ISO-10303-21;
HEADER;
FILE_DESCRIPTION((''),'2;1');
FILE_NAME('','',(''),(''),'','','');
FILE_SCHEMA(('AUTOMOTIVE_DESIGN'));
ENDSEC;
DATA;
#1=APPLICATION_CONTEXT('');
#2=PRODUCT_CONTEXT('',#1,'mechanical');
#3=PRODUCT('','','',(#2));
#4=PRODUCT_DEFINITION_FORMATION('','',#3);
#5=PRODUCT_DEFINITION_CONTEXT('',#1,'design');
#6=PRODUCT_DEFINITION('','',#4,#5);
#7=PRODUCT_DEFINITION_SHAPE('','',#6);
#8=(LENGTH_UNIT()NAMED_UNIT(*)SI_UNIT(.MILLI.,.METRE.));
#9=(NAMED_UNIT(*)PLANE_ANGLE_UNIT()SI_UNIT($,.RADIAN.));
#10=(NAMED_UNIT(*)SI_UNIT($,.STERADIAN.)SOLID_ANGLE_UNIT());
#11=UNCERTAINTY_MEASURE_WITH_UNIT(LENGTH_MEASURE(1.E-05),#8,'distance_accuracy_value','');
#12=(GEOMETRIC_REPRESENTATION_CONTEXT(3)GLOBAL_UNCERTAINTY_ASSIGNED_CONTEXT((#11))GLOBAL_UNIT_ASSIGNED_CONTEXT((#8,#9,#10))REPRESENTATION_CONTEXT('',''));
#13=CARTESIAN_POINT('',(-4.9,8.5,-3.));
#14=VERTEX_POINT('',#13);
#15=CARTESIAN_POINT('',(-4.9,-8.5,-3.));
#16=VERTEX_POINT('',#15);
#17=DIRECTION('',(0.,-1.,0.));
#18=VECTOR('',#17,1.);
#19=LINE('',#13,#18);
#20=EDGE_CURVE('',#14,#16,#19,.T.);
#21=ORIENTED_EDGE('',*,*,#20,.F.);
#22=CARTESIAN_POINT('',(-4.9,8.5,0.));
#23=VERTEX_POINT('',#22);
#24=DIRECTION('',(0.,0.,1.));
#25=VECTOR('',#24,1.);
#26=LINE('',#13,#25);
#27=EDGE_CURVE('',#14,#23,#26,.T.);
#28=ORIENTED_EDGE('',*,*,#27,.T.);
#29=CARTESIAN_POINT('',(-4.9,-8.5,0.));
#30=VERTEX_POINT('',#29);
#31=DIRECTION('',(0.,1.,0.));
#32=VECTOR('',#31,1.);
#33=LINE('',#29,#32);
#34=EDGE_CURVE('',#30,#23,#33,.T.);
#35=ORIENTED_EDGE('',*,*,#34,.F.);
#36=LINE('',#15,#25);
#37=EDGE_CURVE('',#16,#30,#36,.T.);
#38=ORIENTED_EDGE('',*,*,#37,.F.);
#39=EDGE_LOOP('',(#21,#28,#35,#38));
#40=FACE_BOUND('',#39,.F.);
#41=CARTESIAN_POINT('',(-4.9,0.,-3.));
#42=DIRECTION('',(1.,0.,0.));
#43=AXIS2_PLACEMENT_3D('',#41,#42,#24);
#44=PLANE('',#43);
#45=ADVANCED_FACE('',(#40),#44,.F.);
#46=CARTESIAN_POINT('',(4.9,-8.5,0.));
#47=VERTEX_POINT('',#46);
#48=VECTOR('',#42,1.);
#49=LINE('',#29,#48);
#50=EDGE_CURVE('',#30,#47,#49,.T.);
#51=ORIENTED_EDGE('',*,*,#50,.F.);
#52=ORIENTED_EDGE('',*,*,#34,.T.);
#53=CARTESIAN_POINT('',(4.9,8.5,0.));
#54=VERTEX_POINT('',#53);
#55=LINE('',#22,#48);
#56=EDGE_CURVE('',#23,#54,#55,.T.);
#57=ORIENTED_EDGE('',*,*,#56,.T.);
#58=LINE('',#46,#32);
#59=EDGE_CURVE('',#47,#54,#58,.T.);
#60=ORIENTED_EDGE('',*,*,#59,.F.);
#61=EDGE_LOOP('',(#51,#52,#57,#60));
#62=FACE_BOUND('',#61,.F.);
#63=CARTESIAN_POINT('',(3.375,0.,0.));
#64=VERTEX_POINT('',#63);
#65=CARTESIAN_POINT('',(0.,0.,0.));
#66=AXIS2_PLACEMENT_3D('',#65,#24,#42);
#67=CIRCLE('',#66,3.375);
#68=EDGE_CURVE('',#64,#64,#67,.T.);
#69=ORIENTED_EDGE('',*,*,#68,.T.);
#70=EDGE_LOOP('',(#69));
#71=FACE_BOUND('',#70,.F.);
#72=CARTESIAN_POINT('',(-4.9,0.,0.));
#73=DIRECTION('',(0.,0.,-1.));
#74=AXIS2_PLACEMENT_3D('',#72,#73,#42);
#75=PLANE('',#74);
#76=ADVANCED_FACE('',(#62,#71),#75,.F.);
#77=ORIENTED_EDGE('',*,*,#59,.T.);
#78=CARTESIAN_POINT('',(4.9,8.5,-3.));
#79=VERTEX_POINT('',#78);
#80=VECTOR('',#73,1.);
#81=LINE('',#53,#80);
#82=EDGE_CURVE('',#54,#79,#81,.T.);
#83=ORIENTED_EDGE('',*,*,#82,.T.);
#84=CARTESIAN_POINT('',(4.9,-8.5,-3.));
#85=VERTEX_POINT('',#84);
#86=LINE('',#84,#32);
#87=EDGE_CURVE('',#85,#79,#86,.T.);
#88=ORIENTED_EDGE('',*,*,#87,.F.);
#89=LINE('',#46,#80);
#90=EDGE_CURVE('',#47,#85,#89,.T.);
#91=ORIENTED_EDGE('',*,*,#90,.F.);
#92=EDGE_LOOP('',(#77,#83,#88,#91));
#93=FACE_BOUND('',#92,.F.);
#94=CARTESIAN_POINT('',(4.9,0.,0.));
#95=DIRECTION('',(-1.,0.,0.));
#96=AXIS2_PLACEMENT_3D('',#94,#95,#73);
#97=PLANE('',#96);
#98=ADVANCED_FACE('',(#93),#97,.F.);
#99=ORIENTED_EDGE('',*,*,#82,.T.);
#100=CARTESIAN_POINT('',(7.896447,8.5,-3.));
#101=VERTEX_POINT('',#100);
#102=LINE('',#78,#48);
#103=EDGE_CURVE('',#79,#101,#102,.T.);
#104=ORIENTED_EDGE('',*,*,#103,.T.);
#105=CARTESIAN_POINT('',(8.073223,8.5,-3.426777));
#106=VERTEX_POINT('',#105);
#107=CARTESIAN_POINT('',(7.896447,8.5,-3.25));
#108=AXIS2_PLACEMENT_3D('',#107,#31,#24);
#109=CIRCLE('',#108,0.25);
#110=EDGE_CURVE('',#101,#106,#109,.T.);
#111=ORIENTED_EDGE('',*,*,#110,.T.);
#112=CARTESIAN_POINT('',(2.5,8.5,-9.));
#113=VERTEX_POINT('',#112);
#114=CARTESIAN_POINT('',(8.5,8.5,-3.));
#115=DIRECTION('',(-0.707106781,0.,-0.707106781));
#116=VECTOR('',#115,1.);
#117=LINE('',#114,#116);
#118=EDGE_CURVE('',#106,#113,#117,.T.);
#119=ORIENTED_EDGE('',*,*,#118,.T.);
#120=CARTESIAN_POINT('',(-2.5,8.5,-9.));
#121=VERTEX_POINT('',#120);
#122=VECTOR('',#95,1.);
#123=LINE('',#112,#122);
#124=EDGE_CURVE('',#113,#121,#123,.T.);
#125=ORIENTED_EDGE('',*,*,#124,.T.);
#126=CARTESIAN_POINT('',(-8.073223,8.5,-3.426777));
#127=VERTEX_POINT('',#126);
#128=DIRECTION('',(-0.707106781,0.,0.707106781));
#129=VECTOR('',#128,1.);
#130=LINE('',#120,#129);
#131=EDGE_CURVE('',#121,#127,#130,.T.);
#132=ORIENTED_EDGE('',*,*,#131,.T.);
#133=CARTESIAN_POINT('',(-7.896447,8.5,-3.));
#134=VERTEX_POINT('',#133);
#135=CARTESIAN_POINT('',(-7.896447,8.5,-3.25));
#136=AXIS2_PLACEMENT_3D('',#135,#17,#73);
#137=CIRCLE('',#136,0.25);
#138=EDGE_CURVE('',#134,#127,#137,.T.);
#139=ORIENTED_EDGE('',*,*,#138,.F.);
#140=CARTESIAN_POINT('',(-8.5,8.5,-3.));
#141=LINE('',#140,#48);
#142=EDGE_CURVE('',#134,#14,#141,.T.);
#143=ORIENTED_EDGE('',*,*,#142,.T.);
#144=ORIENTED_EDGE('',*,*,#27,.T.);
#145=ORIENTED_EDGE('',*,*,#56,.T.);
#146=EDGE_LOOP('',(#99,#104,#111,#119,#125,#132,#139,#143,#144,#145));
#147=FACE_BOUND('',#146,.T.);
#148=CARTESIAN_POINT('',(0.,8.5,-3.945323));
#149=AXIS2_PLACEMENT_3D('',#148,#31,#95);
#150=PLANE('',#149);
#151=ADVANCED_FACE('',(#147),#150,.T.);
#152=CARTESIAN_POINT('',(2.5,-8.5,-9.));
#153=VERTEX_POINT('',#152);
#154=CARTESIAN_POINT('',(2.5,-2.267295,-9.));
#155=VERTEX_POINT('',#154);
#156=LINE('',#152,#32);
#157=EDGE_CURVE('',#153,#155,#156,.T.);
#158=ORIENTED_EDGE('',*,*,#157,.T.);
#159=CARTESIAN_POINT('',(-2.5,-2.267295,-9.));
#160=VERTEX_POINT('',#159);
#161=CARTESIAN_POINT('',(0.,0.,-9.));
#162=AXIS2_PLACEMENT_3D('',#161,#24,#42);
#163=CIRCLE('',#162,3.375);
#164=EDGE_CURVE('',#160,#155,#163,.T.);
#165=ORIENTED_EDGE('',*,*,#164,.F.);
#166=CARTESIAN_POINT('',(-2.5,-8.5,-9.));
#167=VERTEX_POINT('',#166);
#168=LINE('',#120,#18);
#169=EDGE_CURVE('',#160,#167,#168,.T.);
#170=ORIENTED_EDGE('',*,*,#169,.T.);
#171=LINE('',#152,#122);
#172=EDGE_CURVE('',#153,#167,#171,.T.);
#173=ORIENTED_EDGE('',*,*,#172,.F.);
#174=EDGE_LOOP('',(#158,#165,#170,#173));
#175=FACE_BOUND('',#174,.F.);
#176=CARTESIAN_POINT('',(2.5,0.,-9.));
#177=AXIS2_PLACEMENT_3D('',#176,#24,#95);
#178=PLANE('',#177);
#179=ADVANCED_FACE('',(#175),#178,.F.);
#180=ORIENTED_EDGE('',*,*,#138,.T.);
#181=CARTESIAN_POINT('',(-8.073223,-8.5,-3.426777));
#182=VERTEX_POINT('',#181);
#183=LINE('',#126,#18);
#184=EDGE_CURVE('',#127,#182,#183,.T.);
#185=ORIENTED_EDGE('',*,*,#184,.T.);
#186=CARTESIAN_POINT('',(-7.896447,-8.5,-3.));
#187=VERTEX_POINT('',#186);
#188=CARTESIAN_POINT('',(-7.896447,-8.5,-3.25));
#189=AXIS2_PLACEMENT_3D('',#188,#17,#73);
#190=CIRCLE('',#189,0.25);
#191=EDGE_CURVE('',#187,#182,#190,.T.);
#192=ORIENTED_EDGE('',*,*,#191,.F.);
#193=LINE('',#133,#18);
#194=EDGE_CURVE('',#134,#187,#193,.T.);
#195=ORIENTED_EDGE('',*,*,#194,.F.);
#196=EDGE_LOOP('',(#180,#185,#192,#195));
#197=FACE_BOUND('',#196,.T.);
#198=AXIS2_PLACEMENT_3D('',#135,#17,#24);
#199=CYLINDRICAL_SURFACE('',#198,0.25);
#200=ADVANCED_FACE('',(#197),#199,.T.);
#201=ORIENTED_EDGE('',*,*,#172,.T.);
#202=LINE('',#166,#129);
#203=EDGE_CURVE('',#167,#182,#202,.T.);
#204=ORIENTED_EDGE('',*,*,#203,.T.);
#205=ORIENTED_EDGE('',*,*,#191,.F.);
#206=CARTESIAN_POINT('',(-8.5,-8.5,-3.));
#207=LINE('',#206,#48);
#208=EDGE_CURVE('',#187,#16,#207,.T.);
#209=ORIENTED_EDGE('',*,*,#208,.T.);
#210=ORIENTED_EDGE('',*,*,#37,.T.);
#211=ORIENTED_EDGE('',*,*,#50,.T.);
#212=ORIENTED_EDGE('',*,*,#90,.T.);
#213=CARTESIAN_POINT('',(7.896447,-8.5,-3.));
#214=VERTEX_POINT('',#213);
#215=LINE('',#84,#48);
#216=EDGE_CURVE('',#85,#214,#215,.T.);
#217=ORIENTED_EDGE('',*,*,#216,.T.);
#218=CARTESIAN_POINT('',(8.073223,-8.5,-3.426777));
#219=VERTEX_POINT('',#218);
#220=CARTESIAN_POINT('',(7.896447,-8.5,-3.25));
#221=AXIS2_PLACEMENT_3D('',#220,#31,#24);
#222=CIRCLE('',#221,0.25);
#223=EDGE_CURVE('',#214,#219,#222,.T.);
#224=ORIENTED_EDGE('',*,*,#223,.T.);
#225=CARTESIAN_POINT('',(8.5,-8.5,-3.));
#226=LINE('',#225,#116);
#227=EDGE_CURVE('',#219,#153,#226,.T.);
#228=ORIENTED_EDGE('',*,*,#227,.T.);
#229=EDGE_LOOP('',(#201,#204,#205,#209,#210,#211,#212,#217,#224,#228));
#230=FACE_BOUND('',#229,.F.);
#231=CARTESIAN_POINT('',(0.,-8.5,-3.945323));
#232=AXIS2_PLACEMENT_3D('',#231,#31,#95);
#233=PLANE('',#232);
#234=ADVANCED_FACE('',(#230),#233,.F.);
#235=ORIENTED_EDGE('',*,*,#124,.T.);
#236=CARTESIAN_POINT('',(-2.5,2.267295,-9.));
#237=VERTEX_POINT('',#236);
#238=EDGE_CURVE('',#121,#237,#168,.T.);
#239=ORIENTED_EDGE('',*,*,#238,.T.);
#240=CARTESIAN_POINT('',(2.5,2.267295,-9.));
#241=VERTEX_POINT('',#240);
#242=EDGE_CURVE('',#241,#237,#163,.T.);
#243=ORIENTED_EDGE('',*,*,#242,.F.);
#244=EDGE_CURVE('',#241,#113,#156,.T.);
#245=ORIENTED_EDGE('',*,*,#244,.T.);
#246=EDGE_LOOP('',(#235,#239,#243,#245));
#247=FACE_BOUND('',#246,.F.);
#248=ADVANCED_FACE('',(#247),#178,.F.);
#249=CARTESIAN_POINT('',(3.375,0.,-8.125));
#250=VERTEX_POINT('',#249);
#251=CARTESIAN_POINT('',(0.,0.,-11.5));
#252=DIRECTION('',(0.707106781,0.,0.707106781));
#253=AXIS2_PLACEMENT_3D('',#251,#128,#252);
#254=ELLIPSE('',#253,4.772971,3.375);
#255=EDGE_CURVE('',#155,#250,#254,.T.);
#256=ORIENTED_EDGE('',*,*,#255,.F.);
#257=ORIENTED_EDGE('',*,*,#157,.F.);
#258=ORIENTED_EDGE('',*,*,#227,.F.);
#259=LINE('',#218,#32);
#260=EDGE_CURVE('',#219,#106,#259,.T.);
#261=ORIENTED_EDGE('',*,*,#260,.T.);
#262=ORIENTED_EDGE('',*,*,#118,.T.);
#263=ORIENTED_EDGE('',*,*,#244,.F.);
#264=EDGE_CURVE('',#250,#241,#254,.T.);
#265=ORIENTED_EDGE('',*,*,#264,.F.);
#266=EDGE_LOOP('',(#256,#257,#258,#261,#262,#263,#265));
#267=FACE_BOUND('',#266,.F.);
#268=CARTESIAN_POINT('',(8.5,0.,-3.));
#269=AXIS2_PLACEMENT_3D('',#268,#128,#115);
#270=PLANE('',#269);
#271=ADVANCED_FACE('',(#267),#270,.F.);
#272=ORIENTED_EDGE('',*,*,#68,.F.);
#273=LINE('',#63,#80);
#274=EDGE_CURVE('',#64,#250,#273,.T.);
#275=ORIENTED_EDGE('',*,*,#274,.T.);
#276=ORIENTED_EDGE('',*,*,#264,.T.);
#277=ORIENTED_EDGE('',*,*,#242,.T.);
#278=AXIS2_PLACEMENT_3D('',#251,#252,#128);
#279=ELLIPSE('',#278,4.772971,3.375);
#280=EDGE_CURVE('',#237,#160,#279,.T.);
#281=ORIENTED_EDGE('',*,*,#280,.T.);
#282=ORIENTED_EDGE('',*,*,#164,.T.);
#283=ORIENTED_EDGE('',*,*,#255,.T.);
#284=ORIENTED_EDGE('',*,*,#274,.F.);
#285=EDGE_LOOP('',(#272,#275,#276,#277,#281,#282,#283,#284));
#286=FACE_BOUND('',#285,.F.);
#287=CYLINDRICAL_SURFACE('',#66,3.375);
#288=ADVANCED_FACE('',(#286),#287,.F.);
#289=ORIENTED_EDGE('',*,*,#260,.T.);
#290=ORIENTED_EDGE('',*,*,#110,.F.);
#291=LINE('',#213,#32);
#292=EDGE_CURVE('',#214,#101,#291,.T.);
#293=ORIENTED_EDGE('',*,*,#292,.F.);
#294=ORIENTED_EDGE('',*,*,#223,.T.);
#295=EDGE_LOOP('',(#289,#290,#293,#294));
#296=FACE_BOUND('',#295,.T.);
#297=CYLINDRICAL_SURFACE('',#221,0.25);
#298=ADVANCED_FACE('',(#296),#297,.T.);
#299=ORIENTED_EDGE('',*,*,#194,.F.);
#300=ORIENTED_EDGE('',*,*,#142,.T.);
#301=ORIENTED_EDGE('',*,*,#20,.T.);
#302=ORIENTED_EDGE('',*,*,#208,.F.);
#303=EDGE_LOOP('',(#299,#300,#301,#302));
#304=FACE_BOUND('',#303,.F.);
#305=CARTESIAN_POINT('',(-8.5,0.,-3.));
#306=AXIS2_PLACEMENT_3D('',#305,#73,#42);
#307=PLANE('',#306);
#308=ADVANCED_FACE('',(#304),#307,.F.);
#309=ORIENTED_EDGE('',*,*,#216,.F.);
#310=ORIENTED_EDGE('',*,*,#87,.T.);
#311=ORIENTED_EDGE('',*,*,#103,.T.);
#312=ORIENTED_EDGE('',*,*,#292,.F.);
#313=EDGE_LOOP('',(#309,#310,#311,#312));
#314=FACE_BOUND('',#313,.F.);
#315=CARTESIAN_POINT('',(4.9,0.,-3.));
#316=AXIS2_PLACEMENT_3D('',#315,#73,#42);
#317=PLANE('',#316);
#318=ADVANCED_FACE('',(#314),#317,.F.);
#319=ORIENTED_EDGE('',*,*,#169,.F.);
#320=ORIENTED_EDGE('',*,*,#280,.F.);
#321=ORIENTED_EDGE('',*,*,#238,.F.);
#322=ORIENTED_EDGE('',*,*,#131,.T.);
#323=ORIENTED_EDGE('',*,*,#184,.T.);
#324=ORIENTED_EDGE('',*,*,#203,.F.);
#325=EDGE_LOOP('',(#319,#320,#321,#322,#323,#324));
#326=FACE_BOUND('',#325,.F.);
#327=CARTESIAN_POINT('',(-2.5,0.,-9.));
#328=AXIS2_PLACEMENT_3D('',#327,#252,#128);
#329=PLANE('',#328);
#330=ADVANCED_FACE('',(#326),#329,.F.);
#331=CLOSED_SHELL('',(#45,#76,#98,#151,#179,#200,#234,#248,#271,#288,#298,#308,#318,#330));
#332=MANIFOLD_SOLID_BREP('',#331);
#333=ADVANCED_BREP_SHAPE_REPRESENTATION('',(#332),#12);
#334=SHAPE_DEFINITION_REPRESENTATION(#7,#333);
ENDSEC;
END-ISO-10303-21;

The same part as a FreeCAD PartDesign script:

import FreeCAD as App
import Part
import Sketcher

V = App.Vector
Q = App.Units.Quantity


def edges_at(feature, points):
    """Names of the edges that pass closest to the given points."""
    edges = feature.Shape.Edges
    near = lambda p: min(range(len(edges)), key=lambda i: edges[i].distToShape(Part.Vertex(*p))[0])
    return sorted({f"Edge{near(p) + 1}" for p in points})


def add_polygon(sketch, points):
    """Adds a closed chain of lines whose ends are joined by coincident constraints."""
    first, n = sketch.GeometryCount, len(points)
    for a, b in zip(points, points[1:] + points[:1]):
        sketch.addGeometry(Part.LineSegment(App.Vector(*a, 0), App.Vector(*b, 0)), False)
    for i in range(n):
        sketch.addConstraint(Sketcher.Constraint("Coincident", first + i, 2, first + (i + 1) % n, 1))

doc = App.newDocument("Part")
params = doc.addObject("Spreadsheet::Sheet", "Params")
for row, (alias, value) in enumerate([
    ("sketch1_width", "5 mm"),
    ("sketch1_height", "3 mm"),
    ("sketch1_width2", "3.6 mm"),
    ("sketch1_width3", "9.8 mm"),
    ("pad1_length", "17 mm"),
    ("sketch2_diameter", "6.75 mm"),
    ("fillet_radius", "0.25 mm"),
], start=1):
    params.set(f"A{row}", alias)
    params.set(f"B{row}", "=" + value)
    params.setAlias(f"B{row}", alias)

body = doc.addObject("PartDesign::Body", "Body")

# Sketch on XZ plane
sketch1 = doc.addObject("Sketcher::SketchObject", "Sketch")
body.addObject(sketch1)
sketch1.AttachmentSupport = (doc.XZ_Plane, [""])
sketch1.MapMode = "FlatFace"
add_polygon(sketch1, [(-4.9, 0), (-4.9, -3), (-8.5, -3), (-2.5, -9), (2.5, -9), (8.5, -3), (4.9, -3), (4.9, 0)])  # lines 0-7
sketch1.addConstraint([
    Sketcher.Constraint("Vertical", 0),
    Sketcher.Constraint("Horizontal", 1),
    Sketcher.Constraint("Horizontal", 3),
    Sketcher.Constraint("Horizontal", 5),
    Sketcher.Constraint("Vertical", 6),
    Sketcher.Constraint("Horizontal", 7),
    Sketcher.Constraint("Symmetric", 6, 2, 7, 2, -1, 1),
    Sketcher.Constraint("Symmetric", 1, 2, 4, 2, -2),
    Sketcher.Constraint("Perpendicular", 2, 4),
    Sketcher.Constraint("Equal", 2, 4),
    Sketcher.Constraint("DistanceX", 3, 1, 3, 2, Q("5 mm")),
    Sketcher.Constraint("DistanceY", 0, 2, 0, 1, Q("3 mm")),
    Sketcher.Constraint("DistanceX", 1, 2, 1, 1, Q("3.6 mm")),
    Sketcher.Constraint("DistanceX", 7, 2, 7, 1, Q("9.8 mm")),
])
sketch1.setExpression("Constraints[18]", "Params.sketch1_width")
sketch1.setExpression("Constraints[19]", "Params.sketch1_height")
sketch1.setExpression("Constraints[20]", "Params.sketch1_width2")
sketch1.setExpression("Constraints[21]", "Params.sketch1_width3")
pad1 = doc.addObject("PartDesign::Pad", "Pad")
body.addObject(pad1)
pad1.Profile = sketch1
pad1.setExpression("Length", "Params.pad1_length")
pad1.Midplane = True

# Sketch on XY plane
sketch2 = doc.addObject("Sketcher::SketchObject", "Sketch001")
body.addObject(sketch2)
sketch2.AttachmentSupport = (doc.XY_Plane, [""])
sketch2.MapMode = "FlatFace"
sketch2.addGeometry(Part.Circle(V(0, 0, 0), V(0, 0, 1), 3.4), False)
sketch2.addConstraint([
    Sketcher.Constraint("Coincident", 0, 3, -1, 1),
    Sketcher.Constraint("Diameter", 0, Q("6.75 mm")),
])
sketch2.setExpression("Constraints[1]", "Params.sketch2_diameter")
pocket1 = doc.addObject("PartDesign::Pocket", "Pocket")
body.addObject(pocket1)
pocket1.Profile = sketch2
pocket1.Type = "ThroughAll"
doc.recompute()

fillet = doc.addObject("PartDesign::Fillet", "Fillet")
body.addObject(fillet)
fillet.Base = (pocket1, edges_at(pocket1, [(8.5, 0, -3), (-8.5, 0, -3)]))
fillet.setExpression("Radius", "Params.fillet_radius")

doc.recompute()
